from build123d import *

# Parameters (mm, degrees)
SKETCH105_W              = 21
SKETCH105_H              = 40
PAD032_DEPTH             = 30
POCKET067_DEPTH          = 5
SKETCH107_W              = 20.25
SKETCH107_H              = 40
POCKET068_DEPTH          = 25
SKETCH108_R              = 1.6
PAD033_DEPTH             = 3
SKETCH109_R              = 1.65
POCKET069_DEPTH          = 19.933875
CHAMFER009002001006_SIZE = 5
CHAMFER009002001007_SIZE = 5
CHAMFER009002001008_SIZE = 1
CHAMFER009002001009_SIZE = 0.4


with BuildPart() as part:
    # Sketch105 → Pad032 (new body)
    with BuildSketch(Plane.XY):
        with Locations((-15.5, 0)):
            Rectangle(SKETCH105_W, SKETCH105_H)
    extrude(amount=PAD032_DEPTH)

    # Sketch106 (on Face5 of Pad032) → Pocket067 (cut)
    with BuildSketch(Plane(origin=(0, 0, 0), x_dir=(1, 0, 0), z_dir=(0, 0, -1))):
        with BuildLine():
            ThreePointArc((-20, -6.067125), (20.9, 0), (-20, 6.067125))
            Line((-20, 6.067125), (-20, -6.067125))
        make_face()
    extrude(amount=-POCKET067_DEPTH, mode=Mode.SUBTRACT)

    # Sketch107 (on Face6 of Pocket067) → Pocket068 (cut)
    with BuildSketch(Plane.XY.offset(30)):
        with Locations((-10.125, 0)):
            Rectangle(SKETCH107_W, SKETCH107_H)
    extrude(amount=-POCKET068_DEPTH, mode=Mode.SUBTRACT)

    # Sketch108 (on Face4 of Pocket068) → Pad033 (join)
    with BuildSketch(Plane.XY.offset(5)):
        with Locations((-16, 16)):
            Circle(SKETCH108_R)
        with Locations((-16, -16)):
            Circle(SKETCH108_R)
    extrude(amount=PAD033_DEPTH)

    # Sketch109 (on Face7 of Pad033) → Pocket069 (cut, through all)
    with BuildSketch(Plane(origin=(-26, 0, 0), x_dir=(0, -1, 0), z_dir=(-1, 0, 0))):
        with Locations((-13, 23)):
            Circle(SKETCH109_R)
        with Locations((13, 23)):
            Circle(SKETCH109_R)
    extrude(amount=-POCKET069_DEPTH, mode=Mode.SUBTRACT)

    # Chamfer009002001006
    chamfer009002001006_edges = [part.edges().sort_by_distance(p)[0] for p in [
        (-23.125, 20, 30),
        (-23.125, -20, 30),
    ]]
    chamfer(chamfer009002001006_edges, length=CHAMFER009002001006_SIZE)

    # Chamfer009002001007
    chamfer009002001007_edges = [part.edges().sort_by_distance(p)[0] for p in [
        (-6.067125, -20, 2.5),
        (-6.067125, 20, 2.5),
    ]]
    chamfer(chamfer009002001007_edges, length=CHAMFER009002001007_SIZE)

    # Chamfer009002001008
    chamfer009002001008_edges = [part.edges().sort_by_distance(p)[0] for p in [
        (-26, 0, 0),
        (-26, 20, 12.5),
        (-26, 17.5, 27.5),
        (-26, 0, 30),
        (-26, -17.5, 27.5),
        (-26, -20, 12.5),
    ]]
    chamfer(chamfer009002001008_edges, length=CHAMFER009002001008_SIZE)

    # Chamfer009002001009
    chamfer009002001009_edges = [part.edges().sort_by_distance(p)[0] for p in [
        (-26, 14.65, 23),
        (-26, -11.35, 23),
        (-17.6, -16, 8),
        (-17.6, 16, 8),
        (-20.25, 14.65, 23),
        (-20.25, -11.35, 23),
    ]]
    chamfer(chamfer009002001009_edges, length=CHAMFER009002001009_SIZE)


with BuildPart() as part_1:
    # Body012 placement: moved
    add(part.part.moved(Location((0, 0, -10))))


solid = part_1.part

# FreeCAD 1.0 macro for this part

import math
import FreeCAD as App
import Part
import Sketcher
from FreeCAD import Vector
Q = App.Units.Quantity


def edges_at(feature, points):
    """Names of the edges that pass closest to the given points."""
    edges = feature.Shape.Edges
    near = lambda p: min(range(len(edges)), key=lambda i: edges[i].distToShape(Part.Vertex(*p))[0])
    return sorted({f"Edge{near(p) + 1}" for p in points})

doc = App.newDocument("Part")
params = doc.addObject("Spreadsheet::Sheet", "Params")
for row, (alias, value) in enumerate([
    ("sketch1_width", "21 mm"),
    ("sketch1_height", "40 mm"),
    ("pad1_length", "30 mm"),
    ("sketch2_radius", "20.9 mm"),
    ("pocket1_length", "5 mm"),
    ("sketch3_height", "40 mm"),
    ("sketch3_width", "20.25 mm"),
    ("pocket2_length", "25 mm"),
    ("sketch4_diameter", "3.2 mm"),
    ("pad2_length", "3 mm"),
    ("sketch5_diameter", "3.3 mm"),
    ("chamfer_size", "5 mm"),
    ("chamfer2_size", "5 mm"),
    ("chamfer3_size", "1 mm"),
    ("chamfer4_size", "0.4 mm"),
], start=1):
    params.set(f"A{row}", alias)
    params.set(f"B{row}", "=" + value)
    params.setAlias(f"B{row}", alias)

body = doc.addObject("PartDesign::Body", "Body")

# Sketch on XY plane
sketch1 = doc.addObject("Sketcher::SketchObject", "Sketch")
body.addObject(sketch1)
sketch1.AttachmentSupport = (doc.XY_Plane, [""])
sketch1.MapMode = "FlatFace"
sketch1.addGeometry([
    Part.LineSegment(Vector(-26, 20, 0), Vector(-26, -20, 0)),
    Part.LineSegment(Vector(-26, -20, 0), Vector(-5, -20, 0)),
    Part.LineSegment(Vector(-5, -20, 0), Vector(-5, 20, 0)),
    Part.LineSegment(Vector(-5, 20, 0), Vector(-26, 20, 0)),
], False)
sketch1.addConstraint([
    Sketcher.Constraint("Coincident", 0, 2, 1, 1),
    Sketcher.Constraint("Coincident", 1, 2, 2, 1),
    Sketcher.Constraint("Coincident", 2, 2, 3, 1),
    Sketcher.Constraint("Coincident", 3, 2, 0, 1),
    Sketcher.Constraint("Vertical", 0),
    Sketcher.Constraint("Horizontal", 1),
    Sketcher.Constraint("Vertical", 2),
    Sketcher.Constraint("Horizontal", 3),
    Sketcher.Constraint("DistanceX", 1, 1, 1, 2, Q("21 mm")),
    Sketcher.Constraint("DistanceY", 0, 2, 0, 1, Q("40 mm")),
    Sketcher.Constraint("DistanceX", 0, 2, -1, 1, Q("26 mm")),
    Sketcher.Constraint("DistanceY", 0, 2, -1, 1, Q("20 mm")),
])
sketch1.setExpression("Constraints[8]", "Params.sketch1_width")
sketch1.setExpression("Constraints[9]", "Params.sketch1_height")
pad1 = doc.addObject("PartDesign::Pad", "Pad")
body.addObject(pad1)
pad1.Profile = sketch1
pad1.setExpression("Length", "Params.pad1_length")

# Sketch on XY plane
sketch2 = doc.addObject("Sketcher::SketchObject", "Sketch001")
body.addObject(sketch2)
sketch2.AttachmentSupport = (doc.XY_Plane, [""])
sketch2.MapMode = "FlatFace"
sketch2.addGeometry([
    Part.ArcOfCircle(Part.Circle(Vector(0, 0, 0), Vector(0, 0, 1), 21), math.radians(-163), math.radians(163)),
    Part.LineSegment(Vector(-20, -6, 0), Vector(-20, 6, 0)),
], False)
sketch2.addConstraint([
    Sketcher.Constraint("Coincident", 0, 1, 1, 1),
    Sketcher.Constraint("Coincident", 1, 2, 0, 2),
    Sketcher.Constraint("Vertical", 1),
    Sketcher.Constraint("Coincident", 0, 3, -1, 1),
    Sketcher.Constraint("Radius", 0, Q("20.9 mm")),
    Sketcher.Constraint("DistanceX", 0, 1, -1, 1, Q("20 mm")),
])
sketch2.setExpression("Constraints[4]", "Params.sketch2_radius")
pocket1 = doc.addObject("PartDesign::Pocket", "Pocket")
body.addObject(pocket1)
pocket1.Profile = sketch2
pocket1.setExpression("Length", "Params.pocket1_length")
pocket1.Reversed = True

# Sketch on XY plane
sketch3 = doc.addObject("Sketcher::SketchObject", "Sketch002")
body.addObject(sketch3)
sketch3.AttachmentSupport = (doc.XY_Plane, [""])
sketch3.MapMode = "FlatFace"
sketch3.AttachmentOffset = App.Placement(Vector(0, 0, 30), App.Rotation())
sketch3.addGeometry([
    Part.LineSegment(Vector(-20, 20, 0), Vector(-20, -20, 0)),
    Part.LineSegment(Vector(-20, -20, 0), Vector(0, -20, 0)),
    Part.LineSegment(Vector(0, -20, 0), Vector(0, 20, 0)),
    Part.LineSegment(Vector(0, 20, 0), Vector(-20, 20, 0)),
], False)
sketch3.addConstraint([
    Sketcher.Constraint("Coincident", 0, 2, 1, 1),
    Sketcher.Constraint("Coincident", 1, 2, 2, 1),
    Sketcher.Constraint("Coincident", 2, 2, 3, 1),
    Sketcher.Constraint("Coincident", 3, 2, 0, 1),
    Sketcher.Constraint("Vertical", 0),
    Sketcher.Constraint("Horizontal", 1),
    Sketcher.Constraint("Vertical", 2),
    Sketcher.Constraint("Horizontal", 3),
    Sketcher.Constraint("Symmetric", 1, 2, 2, 2, -1, 1),
    Sketcher.Constraint("DistanceY", 0, 2, 0, 1, Q("40 mm")),
    Sketcher.Constraint("DistanceX", 1, 1, 1, 2, Q("20.25 mm")),
])
sketch3.setExpression("Constraints[9]", "Params.sketch3_height")
sketch3.setExpression("Constraints[10]", "Params.sketch3_width")
pocket2 = doc.addObject("PartDesign::Pocket", "Pocket001")
body.addObject(pocket2)
pocket2.Profile = sketch3
pocket2.setExpression("Length", "Params.pocket2_length")

# Sketch on XY plane
sketch4 = doc.addObject("Sketcher::SketchObject", "Sketch003")
body.addObject(sketch4)
sketch4.AttachmentSupport = (doc.XY_Plane, [""])
sketch4.MapMode = "FlatFace"
sketch4.AttachmentOffset = App.Placement(Vector(0, 0, 5), App.Rotation())
sketch4.addGeometry([
    Part.Circle(Vector(-16, 16, 0), Vector(0, 0, 1), 1.6),
    Part.Circle(Vector(-16, -16, 0), Vector(0, 0, 1), 1.6),
], False)
sketch4.addConstraint([
    Sketcher.Constraint("Equal", 0, 1),
    Sketcher.Constraint("Symmetric", 0, 3, 1, 3, -1),
    Sketcher.Constraint("Diameter", 0, Q("3.2 mm")),
    Sketcher.Constraint("DistanceX", 0, 3, -1, 1, Q("16 mm")),
    Sketcher.Constraint("DistanceY", -1, 1, 0, 3, Q("16 mm")),
])
sketch4.setExpression("Constraints[2]", "Params.sketch4_diameter")
pad2 = doc.addObject("PartDesign::Pad", "Pad001")
body.addObject(pad2)
pad2.Profile = sketch4
pad2.setExpression("Length", "Params.pad2_length")

# Sketch on YZ plane
sketch5 = doc.addObject("Sketcher::SketchObject", "Sketch004")
body.addObject(sketch5)
sketch5.AttachmentSupport = (doc.YZ_Plane, [""])
sketch5.MapMode = "FlatFace"
sketch5.AttachmentOffset = App.Placement(Vector(0, 0, -26), App.Rotation())
sketch5.addGeometry([
    Part.Circle(Vector(13, 23, 0), Vector(0, 0, 1), 1.6),
    Part.Circle(Vector(-13, 23, 0), Vector(0, 0, 1), 1.6),
], False)
sketch5.addConstraint([
    Sketcher.Constraint("Equal", 0, 1),
    Sketcher.Constraint("Symmetric", 0, 3, 1, 3, -2),
    Sketcher.Constraint("Diameter", 0, Q("3.3 mm")),
    Sketcher.Constraint("DistanceX", -1, 1, 0, 3, Q("13 mm")),
    Sketcher.Constraint("DistanceY", -1, 1, 0, 3, Q("23 mm")),
])
sketch5.setExpression("Constraints[2]", "Params.sketch5_diameter")
pocket3 = doc.addObject("PartDesign::Pocket", "Pocket002")
body.addObject(pocket3)
pocket3.Profile = sketch5
pocket3.Type = "ThroughAll"
pocket3.Reversed = True
doc.recompute()

chamfer = doc.addObject("PartDesign::Chamfer", "Chamfer")
body.addObject(chamfer)
chamfer.Base = (pocket3, edges_at(pocket3, [(-23.125, 20, 30), (-23.125, -20, 30)]))
chamfer.setExpression("Size", "Params.chamfer_size")
doc.recompute()

chamfer2 = doc.addObject("PartDesign::Chamfer", "Chamfer001")
body.addObject(chamfer2)
chamfer2.Base = (chamfer, edges_at(chamfer, [(-6.067, -20, 2.5), (-6.067, 20, 2.5)]))
chamfer2.setExpression("Size", "Params.chamfer2_size")
doc.recompute()

chamfer3 = doc.addObject("PartDesign::Chamfer", "Chamfer002")
body.addObject(chamfer3)
chamfer3.Base = (chamfer2, edges_at(chamfer2, [
    (-26, 0, 0),
    (-26, 20, 12.5),
    (-26, 17.5, 27.5),
    (-26, 0, 30),
    (-26, -17.5, 27.5),
    (-26, -20, 12.5),
]))
chamfer3.setExpression("Size", "Params.chamfer3_size")
doc.recompute()

chamfer4 = doc.addObject("PartDesign::Chamfer", "Chamfer003")
body.addObject(chamfer4)
chamfer4.Base = (chamfer3, edges_at(chamfer3, [
    (-26, 14.65, 23),
    (-26, -11.35, 23),
    (-17.6, -16, 8),
    (-17.6, 16, 8),
    (-20.25, 14.65, 23),
    (-20.25, -11.35, 23),
]))
chamfer4.setExpression("Size", "Params.chamfer4_size")
body2 = doc.addObject("PartDesign::Body", "Body001")
doc.recompute()

body.Placement = App.Placement(Vector(0, 0, -10), App.Rotation(Vector(0, 0, 1), 0))
boolean = doc.addObject("PartDesign::Boolean", "Boolean")
body2.addObject(boolean)
boolean.Type = "Fuse"
boolean.addObjects([body])

doc.recompute()
